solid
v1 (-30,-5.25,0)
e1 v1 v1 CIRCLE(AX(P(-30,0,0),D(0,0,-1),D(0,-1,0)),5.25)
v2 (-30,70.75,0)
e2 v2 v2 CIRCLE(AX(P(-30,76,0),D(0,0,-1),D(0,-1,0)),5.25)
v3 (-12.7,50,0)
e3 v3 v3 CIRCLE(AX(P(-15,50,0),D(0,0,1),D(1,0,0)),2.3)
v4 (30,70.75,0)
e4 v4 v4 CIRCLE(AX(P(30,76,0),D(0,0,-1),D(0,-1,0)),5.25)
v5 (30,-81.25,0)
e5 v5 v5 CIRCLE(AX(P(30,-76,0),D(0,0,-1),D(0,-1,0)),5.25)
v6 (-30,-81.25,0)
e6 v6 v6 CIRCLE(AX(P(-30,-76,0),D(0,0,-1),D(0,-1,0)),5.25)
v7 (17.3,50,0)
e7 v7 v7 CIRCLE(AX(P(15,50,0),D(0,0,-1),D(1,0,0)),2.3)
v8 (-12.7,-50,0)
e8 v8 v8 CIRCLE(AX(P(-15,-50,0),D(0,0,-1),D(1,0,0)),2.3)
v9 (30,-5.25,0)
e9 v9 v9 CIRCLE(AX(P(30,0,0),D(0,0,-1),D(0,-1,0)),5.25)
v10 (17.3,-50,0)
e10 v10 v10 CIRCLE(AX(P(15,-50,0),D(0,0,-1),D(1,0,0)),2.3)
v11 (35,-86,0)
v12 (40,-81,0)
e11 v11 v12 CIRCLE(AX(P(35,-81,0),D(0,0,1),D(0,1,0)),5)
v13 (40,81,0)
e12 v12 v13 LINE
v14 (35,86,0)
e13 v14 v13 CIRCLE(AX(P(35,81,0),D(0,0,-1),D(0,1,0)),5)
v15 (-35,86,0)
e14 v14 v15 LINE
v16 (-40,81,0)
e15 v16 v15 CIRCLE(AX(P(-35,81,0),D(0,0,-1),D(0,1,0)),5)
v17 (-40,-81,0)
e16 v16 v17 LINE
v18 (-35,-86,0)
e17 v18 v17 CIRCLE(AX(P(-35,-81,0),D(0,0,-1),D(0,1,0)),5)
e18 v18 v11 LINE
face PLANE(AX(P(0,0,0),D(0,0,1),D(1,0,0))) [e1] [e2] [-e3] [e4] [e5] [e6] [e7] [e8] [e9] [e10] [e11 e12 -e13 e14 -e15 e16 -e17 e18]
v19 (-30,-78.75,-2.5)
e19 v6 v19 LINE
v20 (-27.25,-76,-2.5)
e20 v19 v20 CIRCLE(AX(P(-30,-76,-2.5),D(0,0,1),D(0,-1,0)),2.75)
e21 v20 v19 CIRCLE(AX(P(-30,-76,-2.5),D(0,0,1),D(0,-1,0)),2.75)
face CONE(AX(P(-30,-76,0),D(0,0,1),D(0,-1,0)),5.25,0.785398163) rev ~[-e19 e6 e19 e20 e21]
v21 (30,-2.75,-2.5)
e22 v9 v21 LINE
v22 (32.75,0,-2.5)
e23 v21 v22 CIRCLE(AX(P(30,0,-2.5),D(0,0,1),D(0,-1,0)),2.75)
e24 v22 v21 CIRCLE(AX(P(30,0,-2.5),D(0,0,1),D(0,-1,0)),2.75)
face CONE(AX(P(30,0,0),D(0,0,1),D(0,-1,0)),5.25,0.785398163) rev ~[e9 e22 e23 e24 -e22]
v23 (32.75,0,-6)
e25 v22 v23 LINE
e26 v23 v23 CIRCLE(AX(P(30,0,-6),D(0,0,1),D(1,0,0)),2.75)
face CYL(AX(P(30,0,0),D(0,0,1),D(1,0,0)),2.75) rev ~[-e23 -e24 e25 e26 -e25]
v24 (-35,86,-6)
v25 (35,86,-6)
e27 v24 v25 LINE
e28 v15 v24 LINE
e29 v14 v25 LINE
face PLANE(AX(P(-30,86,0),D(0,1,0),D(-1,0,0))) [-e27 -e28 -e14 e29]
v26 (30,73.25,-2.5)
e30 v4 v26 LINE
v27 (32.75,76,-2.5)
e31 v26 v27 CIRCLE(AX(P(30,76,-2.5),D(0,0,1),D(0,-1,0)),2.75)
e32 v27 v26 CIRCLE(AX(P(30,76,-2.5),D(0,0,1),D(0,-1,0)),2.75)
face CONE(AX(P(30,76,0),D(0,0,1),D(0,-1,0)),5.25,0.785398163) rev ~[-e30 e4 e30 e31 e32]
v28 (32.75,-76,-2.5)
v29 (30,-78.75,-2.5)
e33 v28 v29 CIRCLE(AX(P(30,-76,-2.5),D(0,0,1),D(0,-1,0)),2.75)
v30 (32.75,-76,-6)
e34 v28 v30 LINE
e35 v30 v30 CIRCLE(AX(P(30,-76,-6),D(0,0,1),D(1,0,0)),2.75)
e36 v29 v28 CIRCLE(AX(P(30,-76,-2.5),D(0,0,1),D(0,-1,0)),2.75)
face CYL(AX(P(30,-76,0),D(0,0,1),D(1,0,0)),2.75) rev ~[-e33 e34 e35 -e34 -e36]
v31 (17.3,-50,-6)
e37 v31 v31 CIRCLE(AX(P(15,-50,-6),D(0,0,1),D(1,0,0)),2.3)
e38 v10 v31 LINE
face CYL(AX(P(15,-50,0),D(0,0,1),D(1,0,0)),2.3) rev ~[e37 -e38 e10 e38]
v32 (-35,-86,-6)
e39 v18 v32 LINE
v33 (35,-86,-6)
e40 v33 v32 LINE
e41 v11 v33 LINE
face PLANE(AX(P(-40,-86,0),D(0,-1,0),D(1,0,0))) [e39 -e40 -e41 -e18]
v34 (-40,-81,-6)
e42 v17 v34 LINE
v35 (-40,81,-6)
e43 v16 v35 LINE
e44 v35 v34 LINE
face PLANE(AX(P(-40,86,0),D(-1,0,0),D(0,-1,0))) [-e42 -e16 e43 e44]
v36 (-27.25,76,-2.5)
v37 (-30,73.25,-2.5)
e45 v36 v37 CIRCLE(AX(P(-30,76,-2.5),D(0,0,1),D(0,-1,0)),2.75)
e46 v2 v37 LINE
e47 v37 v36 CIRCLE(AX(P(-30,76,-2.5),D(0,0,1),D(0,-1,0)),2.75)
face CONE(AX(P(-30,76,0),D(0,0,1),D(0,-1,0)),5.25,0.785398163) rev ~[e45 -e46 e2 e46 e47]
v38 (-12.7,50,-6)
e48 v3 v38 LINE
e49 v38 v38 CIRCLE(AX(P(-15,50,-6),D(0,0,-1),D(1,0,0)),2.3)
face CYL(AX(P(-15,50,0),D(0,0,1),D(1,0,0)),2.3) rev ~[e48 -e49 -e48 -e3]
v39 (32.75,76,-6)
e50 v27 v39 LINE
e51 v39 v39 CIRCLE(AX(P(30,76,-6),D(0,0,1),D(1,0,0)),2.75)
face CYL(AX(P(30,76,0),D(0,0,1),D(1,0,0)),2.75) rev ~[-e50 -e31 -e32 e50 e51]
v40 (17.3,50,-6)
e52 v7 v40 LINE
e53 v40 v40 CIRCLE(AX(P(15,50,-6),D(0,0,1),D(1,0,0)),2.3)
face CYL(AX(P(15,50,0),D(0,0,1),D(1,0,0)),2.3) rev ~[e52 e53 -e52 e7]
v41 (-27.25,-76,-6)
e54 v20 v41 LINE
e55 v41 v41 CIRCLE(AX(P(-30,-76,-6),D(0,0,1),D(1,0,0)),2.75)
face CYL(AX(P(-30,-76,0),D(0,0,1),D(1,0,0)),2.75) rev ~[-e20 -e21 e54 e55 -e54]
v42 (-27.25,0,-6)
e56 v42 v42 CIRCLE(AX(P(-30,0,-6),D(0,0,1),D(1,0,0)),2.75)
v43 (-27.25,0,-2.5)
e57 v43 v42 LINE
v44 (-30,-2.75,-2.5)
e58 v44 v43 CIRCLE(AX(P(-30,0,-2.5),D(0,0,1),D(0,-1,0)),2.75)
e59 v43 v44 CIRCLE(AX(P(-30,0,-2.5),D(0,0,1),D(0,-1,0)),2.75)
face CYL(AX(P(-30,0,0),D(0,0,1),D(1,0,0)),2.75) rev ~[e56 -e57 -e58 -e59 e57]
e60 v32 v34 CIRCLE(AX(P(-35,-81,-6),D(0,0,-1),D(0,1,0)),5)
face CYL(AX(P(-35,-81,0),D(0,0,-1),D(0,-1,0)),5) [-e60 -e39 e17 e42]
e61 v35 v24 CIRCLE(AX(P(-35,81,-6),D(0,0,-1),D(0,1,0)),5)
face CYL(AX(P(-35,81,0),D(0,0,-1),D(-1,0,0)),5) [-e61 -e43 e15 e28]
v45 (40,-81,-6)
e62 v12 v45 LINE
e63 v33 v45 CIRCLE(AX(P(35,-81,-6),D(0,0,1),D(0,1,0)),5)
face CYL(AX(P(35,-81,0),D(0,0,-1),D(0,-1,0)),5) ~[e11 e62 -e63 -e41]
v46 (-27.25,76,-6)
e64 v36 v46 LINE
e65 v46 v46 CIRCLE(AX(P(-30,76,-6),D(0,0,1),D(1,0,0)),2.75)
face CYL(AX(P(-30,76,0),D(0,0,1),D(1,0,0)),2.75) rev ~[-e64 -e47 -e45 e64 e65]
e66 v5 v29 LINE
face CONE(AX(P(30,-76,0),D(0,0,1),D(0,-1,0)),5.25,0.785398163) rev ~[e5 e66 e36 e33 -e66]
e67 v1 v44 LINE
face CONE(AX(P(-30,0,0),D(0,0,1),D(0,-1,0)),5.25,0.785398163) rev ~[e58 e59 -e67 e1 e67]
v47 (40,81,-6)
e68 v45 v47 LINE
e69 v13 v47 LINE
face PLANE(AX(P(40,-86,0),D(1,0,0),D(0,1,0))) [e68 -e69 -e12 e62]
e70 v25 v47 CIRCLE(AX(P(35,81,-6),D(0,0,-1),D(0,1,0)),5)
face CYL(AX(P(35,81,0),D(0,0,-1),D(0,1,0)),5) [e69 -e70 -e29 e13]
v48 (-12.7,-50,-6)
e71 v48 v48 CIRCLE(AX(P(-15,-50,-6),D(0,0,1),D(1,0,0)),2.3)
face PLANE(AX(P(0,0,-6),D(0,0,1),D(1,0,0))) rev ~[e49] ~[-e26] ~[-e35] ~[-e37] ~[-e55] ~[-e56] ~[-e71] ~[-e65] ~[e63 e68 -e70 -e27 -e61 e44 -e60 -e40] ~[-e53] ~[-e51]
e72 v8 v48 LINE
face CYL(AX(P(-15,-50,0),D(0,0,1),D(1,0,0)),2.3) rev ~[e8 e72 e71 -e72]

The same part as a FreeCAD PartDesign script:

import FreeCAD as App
import Part
import Sketcher
from FreeCAD import Vector
Q = App.Units.Quantity


def edges_at(feature, points):
    """Names of the edges that pass closest to the given points."""
    edges = feature.Shape.Edges
    near = lambda p: min(range(len(edges)), key=lambda i: edges[i].distToShape(Part.Vertex(*p))[0])
    return sorted({f"Edge{near(p) + 1}" for p in points})

doc = App.newDocument("Part")
body = doc.addObject("PartDesign::Body", "Body")

sketch1 = body.newObject("Sketcher::SketchObject", "Sketch")
sketch1.AttachmentSupport = (doc.getObject("XY_Plane"), [""])
sketch1.MapMode = "FlatFace"
sketch1.addGeometry(Part.LineSegment(Vector(-40, -86, 0), Vector(40, -86, 0)), False)
sketch1.addGeometry(Part.LineSegment(Vector(40, -86, 0), Vector(40, 86, 0)), False)
sketch1.addGeometry(Part.LineSegment(Vector(40, 86, 0), Vector(-40, 86, 0)), False)
sketch1.addGeometry(Part.LineSegment(Vector(-40, 86, 0), Vector(-40, -86, 0)), False)
sketch1.addGeometry(Part.Circle(Vector(-15, 50, 0), Vector(0, 0, 1), 2.3), False)
sketch1.addGeometry(Part.Circle(Vector(-30, 0, 0), Vector(0, 0, 1), 2.8), False)
sketch1.addGeometry(Part.Circle(Vector(-30, 76, 0), Vector(0, 0, 1), 2.8), False)
sketch1.addGeometry(Part.Circle(Vector(30, 76, 0), Vector(0, 0, 1), 2.8), False)
sketch1.addGeometry(Part.Circle(Vector(30, 0, 0), Vector(0, 0, 1), 2.8), False)
sketch1.addGeometry(Part.Circle(Vector(15, 50, 0), Vector(0, 0, 1), 2.3), False)
sketch1.addGeometry(Part.Circle(Vector(-15, -50, 0), Vector(0, 0, 1), 2.3), False)
sketch1.addGeometry(Part.Circle(Vector(15, -50, 0), Vector(0, 0, 1), 2.3), False)
sketch1.addGeometry(Part.Circle(Vector(30, -76, 0), Vector(0, 0, 1), 2.8), False)
sketch1.addGeometry(Part.Circle(Vector(-30, -76, 0), Vector(0, 0, 1), 2.8), False)
sketch1.addConstraint(Sketcher.Constraint("Coincident", 0, 2, 1, 1))
sketch1.addConstraint(Sketcher.Constraint("Coincident", 1, 2, 2, 1))
sketch1.addConstraint(Sketcher.Constraint("Coincident", 2, 2, 3, 1))
sketch1.addConstraint(Sketcher.Constraint("Coincident", 3, 2, 0, 1))
sketch1.addConstraint(Sketcher.Constraint("Horizontal", 0))
sketch1.addConstraint(Sketcher.Constraint("Vertical", 1))
sketch1.addConstraint(Sketcher.Constraint("Horizontal", 2))
sketch1.addConstraint(Sketcher.Constraint("Vertical", 3))
sketch1.addConstraint(Sketcher.Constraint("Equal", 5, 6))
sketch1.addConstraint(Sketcher.Constraint("Equal", 6, 7))
sketch1.addConstraint(Sketcher.Constraint("Equal", 7, 8))
sketch1.addConstraint(Sketcher.Constraint("Equal", 4, 9))
sketch1.addConstraint(Sketcher.Constraint("Equal", 9, 10))
sketch1.addConstraint(Sketcher.Constraint("Equal", 10, 11))
sketch1.addConstraint(Sketcher.Constraint("Equal", 8, 12))
sketch1.addConstraint(Sketcher.Constraint("Equal", 12, 13))
sketch1.addConstraint(Sketcher.Constraint("Symmetric", 5, 3, 8, 3, -1, 1))
sketch1.addConstraint(Sketcher.Constraint("Symmetric", 9, 3, 10, 3, -1, 1))
sketch1.addConstraint(Sketcher.Constraint("Symmetric", 4, 3, 11, 3, -1, 1))
sketch1.addConstraint(Sketcher.Constraint("Symmetric", 6, 3, 12, 3, -1, 1))
sketch1.addConstraint(Sketcher.Constraint("Symmetric", 7, 3, 13, 3, -1, 1))
sketch1.addConstraint(Sketcher.Constraint("Symmetric", 0, 2, 2, 2, -1, 1))
sketch1.addConstraint(Sketcher.Constraint("Symmetric", 6, 3, 7, 3, -2))
sketch1.addConstraint(Sketcher.Constraint("Symmetric", 4, 3, 9, 3, -2))
sketch1.addConstraint(Sketcher.Constraint("PointOnObject", 5, 3, -1))
sketch1.addConstraint(Sketcher.Constraint("Vertical", 5, 3, 6, 3))
sketch1.addConstraint(Sketcher.Constraint("Diameter", 4, Q("4.6 mm")))
sketch1.addConstraint(Sketcher.Constraint("Diameter", 5, Q("5.5 mm")))
sketch1.addConstraint(Sketcher.Constraint("DistanceX", 0, 1, 0, 2, Q("80 mm")))
sketch1.addConstraint(Sketcher.Constraint("DistanceX", 5, 3, -1, 1, Q("30 mm")))
sketch1.addConstraint(Sketcher.Constraint("DistanceX", 4, 3, 9, 3, Q("30 mm")))
sketch1.addConstraint(Sketcher.Constraint("DistanceY", 10, 3, 4, 3, Q("100 mm")))
sketch1.addConstraint(Sketcher.Constraint("DistanceY", 0, 2, 12, 3, Q("10 mm")))
sketch1.addConstraint(Sketcher.Constraint("DistanceY", 0, 2, 11, 3, Q("36 mm")))
pad1 = body.newObject("PartDesign::Pad", "Pad")
pad1.Profile = sketch1
pad1.Length = 6
pad1.Reversed = True
doc.recompute()

fillet = body.newObject("PartDesign::Fillet", "Fillet")
fillet.Base = (pad1, edges_at(pad1, [
    (40, -86, -3),
    (-40, -86, -3),
    (40, 86, -3),
    (-40, 86, -3),
]))
fillet.Radius = 5

sketch2 = body.newObject("Sketcher::SketchObject", "Sketch001")
sketch2.AttachmentSupport = (doc.getObject("XY_Plane"), [""])
sketch2.MapMode = "FlatFace"
sketch2.addGeometry(Part.Circle(Vector(30, 0, 0), Vector(0, 0, 1), 2.5), False)
sketch2.addGeometry(Part.Circle(Vector(30, 76, 0), Vector(0, 0, 1), 2.5), False)
sketch2.addGeometry(Part.Circle(Vector(30, -76, 0), Vector(0, 0, 1), 2.5), False)
sketch2.addGeometry(Part.Circle(Vector(-30, -76, 0), Vector(0, 0, 1), 2.5), False)
sketch2.addGeometry(Part.Circle(Vector(-30, 0, 0), Vector(0, 0, 1), 2.5), False)
sketch2.addGeometry(Part.Circle(Vector(-30, 76, 0), Vector(0, 0, 1), 2.5), False)
sketch2.addConstraint(Sketcher.Constraint("Equal", 0, 1))
sketch2.addConstraint(Sketcher.Constraint("Equal", 1, 2))
sketch2.addConstraint(Sketcher.Constraint("Equal", 2, 3))
sketch2.addConstraint(Sketcher.Constraint("Equal", 3, 4))
sketch2.addConstraint(Sketcher.Constraint("Equal", 4, 5))
sketch2.addConstraint(Sketcher.Constraint("Symmetric", 1, 3, 3, 3, -1, 1))
sketch2.addConstraint(Sketcher.Constraint("Symmetric", 0, 3, 4, 3, -1, 1))
sketch2.addConstraint(Sketcher.Constraint("Symmetric", 2, 3, 5, 3, -1, 1))
sketch2.addConstraint(Sketcher.Constraint("Symmetric", 2, 3, 3, 3, -2))
sketch2.addConstraint(Sketcher.Constraint("PointOnObject", 0, 3, -1))
sketch2.addConstraint(Sketcher.Constraint("Vertical", 0, 3, 1, 3))
sketch2.addConstraint(Sketcher.Constraint("Diameter", 0, Q("5 mm")))
sketch2.addConstraint(Sketcher.Constraint("DistanceX", -1, 1, 0, 3, Q("30 mm")))
sketch2.addConstraint(Sketcher.Constraint("DistanceY", -1, 1, 1, 3, Q("76 mm")))
doc.recompute()
hole = body.newObject("PartDesign::Hole", "Hole")
hole.Profile = sketch2
hole.ThreadType = "None"
hole.Diameter = 5
hole.DepthType = "Dimension"
hole.Depth = 30
hole.DrillPoint = "Angled"
hole.DrillPointAngle = 118
hole.HoleCutType = "Countersink"
hole.HoleCutDiameter = 10.5
hole.HoleCutCountersinkAngle = 90

doc.recompute()
